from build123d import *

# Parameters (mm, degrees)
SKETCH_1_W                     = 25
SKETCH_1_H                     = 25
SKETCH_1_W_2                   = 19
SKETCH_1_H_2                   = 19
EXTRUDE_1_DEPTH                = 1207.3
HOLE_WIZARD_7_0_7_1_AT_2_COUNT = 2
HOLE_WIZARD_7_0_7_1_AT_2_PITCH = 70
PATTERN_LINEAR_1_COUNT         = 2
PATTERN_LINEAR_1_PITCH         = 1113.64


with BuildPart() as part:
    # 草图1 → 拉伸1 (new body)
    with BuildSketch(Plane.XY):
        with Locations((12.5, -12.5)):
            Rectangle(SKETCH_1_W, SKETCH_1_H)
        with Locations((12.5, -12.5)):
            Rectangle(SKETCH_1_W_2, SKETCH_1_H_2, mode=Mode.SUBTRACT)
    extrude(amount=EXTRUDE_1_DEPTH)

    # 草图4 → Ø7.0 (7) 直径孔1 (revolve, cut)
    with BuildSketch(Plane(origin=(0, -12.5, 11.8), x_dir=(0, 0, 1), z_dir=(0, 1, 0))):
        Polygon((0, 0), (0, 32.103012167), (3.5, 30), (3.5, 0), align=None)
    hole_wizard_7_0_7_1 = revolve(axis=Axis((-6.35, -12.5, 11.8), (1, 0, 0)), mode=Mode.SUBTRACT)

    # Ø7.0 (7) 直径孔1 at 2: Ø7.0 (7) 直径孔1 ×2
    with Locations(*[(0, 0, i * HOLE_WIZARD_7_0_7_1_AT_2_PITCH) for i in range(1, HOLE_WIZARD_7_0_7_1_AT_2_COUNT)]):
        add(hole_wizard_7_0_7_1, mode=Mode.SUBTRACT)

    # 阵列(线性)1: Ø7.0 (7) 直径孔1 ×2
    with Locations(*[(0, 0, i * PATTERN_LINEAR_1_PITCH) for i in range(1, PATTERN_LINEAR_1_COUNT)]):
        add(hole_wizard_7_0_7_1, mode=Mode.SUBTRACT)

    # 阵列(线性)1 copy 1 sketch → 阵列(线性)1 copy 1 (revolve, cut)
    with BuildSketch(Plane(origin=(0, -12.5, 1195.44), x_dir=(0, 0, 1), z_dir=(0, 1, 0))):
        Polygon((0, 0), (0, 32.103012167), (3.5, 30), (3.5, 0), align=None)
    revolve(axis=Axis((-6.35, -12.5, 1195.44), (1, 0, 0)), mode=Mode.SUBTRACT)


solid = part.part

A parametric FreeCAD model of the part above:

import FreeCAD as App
import Part
import Sketcher

V = App.Vector
Q = App.Units.Quantity

doc = App.newDocument("Part")
body = doc.addObject("PartDesign::Body", "Body")

# Sketch on XY plane
sketch1 = body.newObject("Sketcher::SketchObject", "Sketch")
sketch1.AttachmentSupport = (doc.getObject("XY_Plane"), [""])
sketch1.MapMode = "FlatFace"
sketch1.addGeometry(Part.LineSegment(V(0, 0, 0), V(0, -25, 0)), False)
sketch1.addGeometry(Part.LineSegment(V(0, -25, 0), V(25, -25, 0)), False)
sketch1.addGeometry(Part.LineSegment(V(25, -25, 0), V(25, 0, 0)), False)
sketch1.addGeometry(Part.LineSegment(V(25, 0, 0), V(0, 0, 0)), False)
sketch1.addGeometry(Part.LineSegment(V(22, -22, 0), V(3, -22, 0)), False)
sketch1.addGeometry(Part.LineSegment(V(3, -22, 0), V(3, -3, 0)), False)
sketch1.addGeometry(Part.LineSegment(V(3, -3, 0), V(22, -3, 0)), False)
sketch1.addGeometry(Part.LineSegment(V(22, -3, 0), V(22, -22, 0)), False)
sketch1.addConstraint(Sketcher.Constraint("Coincident", 0, 2, 1, 1))
sketch1.addConstraint(Sketcher.Constraint("Coincident", 1, 2, 2, 1))
sketch1.addConstraint(Sketcher.Constraint("Coincident", 2, 2, 3, 1))
sketch1.addConstraint(Sketcher.Constraint("Coincident", 3, 2, 0, 1))
sketch1.addConstraint(Sketcher.Constraint("Coincident", 4, 2, 5, 1))
sketch1.addConstraint(Sketcher.Constraint("Coincident", 5, 2, 6, 1))
sketch1.addConstraint(Sketcher.Constraint("Coincident", 6, 2, 7, 1))
sketch1.addConstraint(Sketcher.Constraint("Coincident", 7, 2, 4, 1))
sketch1.addConstraint(Sketcher.Constraint("Vertical", 0))
sketch1.addConstraint(Sketcher.Constraint("Horizontal", 1))
sketch1.addConstraint(Sketcher.Constraint("Vertical", 2))
sketch1.addConstraint(Sketcher.Constraint("Horizontal", 3))
sketch1.addConstraint(Sketcher.Constraint("Horizontal", 4))
sketch1.addConstraint(Sketcher.Constraint("Vertical", 5))
sketch1.addConstraint(Sketcher.Constraint("Horizontal", 6))
sketch1.addConstraint(Sketcher.Constraint("Vertical", 7))
sketch1.addConstraint(Sketcher.Constraint("Coincident", 3, 2, -1, 1))
sketch1.addConstraint(Sketcher.Constraint("Equal", 3, 0))
sketch1.addConstraint(Sketcher.Constraint("Equal", 6, 5))
sketch1.addConstraint(Sketcher.Constraint("DistanceX", 1, 1, 1, 2, 25.0))
sketch1.addConstraint(Sketcher.Constraint("DistanceX", 4, 2, 4, 1, 19.0))
sketch1.addConstraint(Sketcher.Constraint("DistanceX", -1, 1, 4, 2, 3.0))
sketch1.addConstraint(Sketcher.Constraint("DistanceY", 4, 2, -1, 1, 22.0))
pad1 = body.newObject("PartDesign::Pad", "Pad")
pad1.Profile = sketch1
pad1.Length = 1207.3

# Sketch on XZ plane
sketch2 = body.newObject("Sketcher::SketchObject", "Sketch001")
sketch2.AttachmentSupport = (doc.getObject("XZ_Plane"), [""])
sketch2.MapMode = "FlatFace"
sketch2.AttachmentOffset = App.Placement(V(0, 0, 12.5), App.Rotation())
sketch2.addGeometry(Part.LineSegment(V(32.1, 11.8, 0), V(0, 11.8, 0)), False)
sketch2.addGeometry(Part.LineSegment(V(0, 11.8, 0), V(0, 15.3, 0)), False)
sketch2.addGeometry(Part.LineSegment(V(0, 15.3, 0), V(30, 15.3, 0)), False)
sketch2.addGeometry(Part.LineSegment(V(30, 15.3, 0), V(32.1, 11.8, 0)), False)
sketch2.addGeometry(Part.LineSegment(V(0, 11.8, 0), V(32.1, 11.8, 0)), True)  # axis
sketch2.addConstraint(Sketcher.Constraint("Coincident", 0, 2, 1, 1))
sketch2.addConstraint(Sketcher.Constraint("Coincident", 1, 2, 2, 1))
sketch2.addConstraint(Sketcher.Constraint("Coincident", 2, 2, 3, 1))
sketch2.addConstraint(Sketcher.Constraint("Coincident", 3, 2, 0, 1))
sketch2.addConstraint(Sketcher.Constraint("Horizontal", 0))
sketch2.addConstraint(Sketcher.Constraint("Vertical", 1))
sketch2.addConstraint(Sketcher.Constraint("Horizontal", 2))
sketch2.addConstraint(Sketcher.Constraint("Horizontal", 4))
sketch2.addConstraint(Sketcher.Constraint("Coincident", 4, 1, 0, 2))
sketch2.addConstraint(Sketcher.Constraint("PointOnObject", 0, 2, -2))
sketch2.addConstraint(Sketcher.Constraint("Equal", 0, 4))
sketch2.addConstraint(Sketcher.Constraint("DistanceX", 2, 1, 2, 2, 30.0))
sketch2.addConstraint(Sketcher.Constraint("Angle", 3, Q("-59 deg")))
sketch2.addConstraint(Sketcher.Constraint("DistanceY", 1, 1, 1, 2, 3.5))
sketch2.addConstraint(Sketcher.Constraint("DistanceY", -1, 1, 0, 2, 11.8))
groove = body.newObject("PartDesign::Groove", "Groove")
groove.Profile = sketch2
groove.ReferenceAxis = (sketch2, ["Axis0"])
groove.Angle = 360
doc.recompute()

linearpattern = body.newObject("PartDesign::LinearPattern", "LinearPattern")
linearpattern.Originals = [groove]
linearpattern.Direction = (doc.getObject("Z_Axis"), [""])
linearpattern.Mode = "offset"
linearpattern.Offset = 70
linearpattern.Occurrences = 2
body.Tip = linearpattern
doc.recompute()

linearpattern2 = body.newObject("PartDesign::LinearPattern", "LinearPattern001")
linearpattern2.Originals = [groove]
linearpattern2.Direction = (doc.getObject("Z_Axis"), [""])
linearpattern2.Mode = "offset"
linearpattern2.Offset = 1113.64
linearpattern2.Occurrences = 2
body.Tip = linearpattern2

# Sketch on XZ plane
sketch3 = body.newObject("Sketcher::SketchObject", "Sketch002")
sketch3.AttachmentSupport = (doc.getObject("XZ_Plane"), [""])
sketch3.MapMode = "FlatFace"
sketch3.AttachmentOffset = App.Placement(V(0, 0, 12.5), App.Rotation())
sketch3.addGeometry(Part.LineSegment(V(32.1, 1195.4, 0), V(0, 1195.4, 0)), False)
sketch3.addGeometry(Part.LineSegment(V(0, 1195.4, 0), V(0, 1198.9, 0)), False)
sketch3.addGeometry(Part.LineSegment(V(0, 1198.9, 0), V(30, 1198.9, 0)), False)
sketch3.addGeometry(Part.LineSegment(V(30, 1198.9, 0), V(32.1, 1195.4, 0)), False)
sketch3.addGeometry(Part.LineSegment(V(0, 1195.4, 0), V(32.1, 1195.4, 0)), True)  # axis
sketch3.addConstraint(Sketcher.Constraint("Coincident", 0, 2, 1, 1))
sketch3.addConstraint(Sketcher.Constraint("Coincident", 1, 2, 2, 1))
sketch3.addConstraint(Sketcher.Constraint("Coincident", 2, 2, 3, 1))
sketch3.addConstraint(Sketcher.Constraint("Coincident", 3, 2, 0, 1))
sketch3.addConstraint(Sketcher.Constraint("Horizontal", 0))
sketch3.addConstraint(Sketcher.Constraint("Vertical", 1))
sketch3.addConstraint(Sketcher.Constraint("Horizontal", 2))
sketch3.addConstraint(Sketcher.Constraint("Horizontal", 4))
sketch3.addConstraint(Sketcher.Constraint("Coincident", 4, 1, 0, 2))
sketch3.addConstraint(Sketcher.Constraint("PointOnObject", 0, 2, -2))
sketch3.addConstraint(Sketcher.Constraint("Equal", 0, 4))
sketch3.addConstraint(Sketcher.Constraint("DistanceX", 2, 1, 2, 2, 30.0))
sketch3.addConstraint(Sketcher.Constraint("Angle", 3, Q("-59 deg")))
sketch3.addConstraint(Sketcher.Constraint("DistanceY", 1, 1, 1, 2, 3.5))
sketch3.addConstraint(Sketcher.Constraint("DistanceY", -1, 1, 0, 2, 1195.44))
groove2 = body.newObject("PartDesign::Groove", "Groove001")
groove2.Profile = sketch3
groove2.ReferenceAxis = (sketch3, ["Axis0"])
groove2.Angle = 360

doc.recompute()
